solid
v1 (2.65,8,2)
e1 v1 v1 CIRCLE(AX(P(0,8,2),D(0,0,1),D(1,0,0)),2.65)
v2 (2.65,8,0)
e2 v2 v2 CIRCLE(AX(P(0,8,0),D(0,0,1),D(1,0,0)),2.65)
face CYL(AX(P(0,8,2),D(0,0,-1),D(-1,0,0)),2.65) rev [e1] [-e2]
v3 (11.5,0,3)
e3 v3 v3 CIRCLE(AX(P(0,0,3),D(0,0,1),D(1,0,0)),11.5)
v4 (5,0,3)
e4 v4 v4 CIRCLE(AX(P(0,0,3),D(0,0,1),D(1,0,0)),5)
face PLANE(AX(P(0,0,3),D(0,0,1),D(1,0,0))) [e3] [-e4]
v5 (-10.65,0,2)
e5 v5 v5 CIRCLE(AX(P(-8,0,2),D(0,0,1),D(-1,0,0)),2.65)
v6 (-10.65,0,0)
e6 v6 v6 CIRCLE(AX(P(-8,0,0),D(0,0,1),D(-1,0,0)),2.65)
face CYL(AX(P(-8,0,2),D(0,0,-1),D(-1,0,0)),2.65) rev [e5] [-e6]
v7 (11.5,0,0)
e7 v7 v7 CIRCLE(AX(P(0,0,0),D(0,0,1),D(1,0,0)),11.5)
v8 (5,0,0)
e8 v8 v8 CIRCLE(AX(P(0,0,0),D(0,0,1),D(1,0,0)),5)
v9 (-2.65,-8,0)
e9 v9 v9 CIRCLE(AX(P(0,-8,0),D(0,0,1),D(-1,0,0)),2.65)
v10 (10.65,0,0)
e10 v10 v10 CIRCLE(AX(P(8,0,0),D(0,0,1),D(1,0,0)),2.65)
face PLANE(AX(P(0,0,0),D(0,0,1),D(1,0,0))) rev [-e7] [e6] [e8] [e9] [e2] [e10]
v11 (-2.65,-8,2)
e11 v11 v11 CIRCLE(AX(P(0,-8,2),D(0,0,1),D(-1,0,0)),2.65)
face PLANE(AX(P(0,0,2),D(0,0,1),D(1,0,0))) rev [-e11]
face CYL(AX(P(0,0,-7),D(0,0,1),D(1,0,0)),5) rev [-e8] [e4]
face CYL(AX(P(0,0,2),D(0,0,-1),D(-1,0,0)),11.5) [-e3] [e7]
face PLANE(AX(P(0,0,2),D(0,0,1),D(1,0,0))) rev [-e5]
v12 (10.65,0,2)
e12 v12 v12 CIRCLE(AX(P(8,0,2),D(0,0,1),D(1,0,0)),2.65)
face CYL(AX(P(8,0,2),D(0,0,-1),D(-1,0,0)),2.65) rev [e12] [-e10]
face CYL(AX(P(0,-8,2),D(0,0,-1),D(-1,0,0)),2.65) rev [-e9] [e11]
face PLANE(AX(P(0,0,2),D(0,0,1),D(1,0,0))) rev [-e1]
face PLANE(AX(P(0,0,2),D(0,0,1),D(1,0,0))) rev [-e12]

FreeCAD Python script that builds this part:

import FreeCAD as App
import Part
import Sketcher
from FreeCAD import Vector

doc = App.newDocument("Part")
params = doc.addObject("Spreadsheet::Sheet", "Params")
for row, (alias, value) in enumerate([
    ("sketch1_diameter", "23 mm"),
    ("sketch1_diameter2", "5.3 mm"),
    ("pad1_length", "2 mm"),
    ("sketch2_diameter", "23 mm"),
    ("pad2_length", "1 mm"),
    ("sketch3_diameter", "10 mm"),
    ("pocket1_length", "10 mm"),
], start=1):
    params.set(f"A{row}", alias)
    params.set(f"B{row}", "=" + value)
    params.setAlias(f"B{row}", alias)

body = doc.addObject("PartDesign::Body", "Body")

# Sketch on XY plane
sketch1 = body.newObject("Sketcher::SketchObject", "Sketch")
sketch1.AttachmentSupport = (doc.getObject("XY_Plane"), [""])
sketch1.MapMode = "FlatFace"
sketch1.addGeometry(Part.Circle(Vector(0, 0, 0), Vector(0, 0, 1), 11.5), False)
sketch1.addGeometry(Part.Circle(Vector(0, -8, 0), Vector(0, 0, 1), 2.65), False)
sketch1.addGeometry(Part.Circle(Vector(-8, 0, 0), Vector(0, 0, 1), 2.65), False)
sketch1.addGeometry(Part.Circle(Vector(8, 0, 0), Vector(0, 0, 1), 2.65), False)
sketch1.addGeometry(Part.Circle(Vector(0, 8, 0), Vector(0, 0, 1), 2.65), False)
sketch1.addConstraint(Sketcher.Constraint("Coincident", 0, 3, -1, 1))
sketch1.addConstraint(Sketcher.Constraint("Equal", 1, 2))
sketch1.addConstraint(Sketcher.Constraint("Equal", 2, 3))
sketch1.addConstraint(Sketcher.Constraint("Equal", 3, 4))
sketch1.addConstraint(Sketcher.Constraint("Symmetric", 2, 3, 3, 3, -1, 1))
sketch1.addConstraint(Sketcher.Constraint("Symmetric", 1, 3, 4, 3, -1, 1))
sketch1.addConstraint(Sketcher.Constraint("PointOnObject", 1, 3, -2))
sketch1.addConstraint(Sketcher.Constraint("PointOnObject", 2, 3, -1))
sketch1.addConstraint(Sketcher.Constraint("Diameter", 0, 23.0))
sketch1.addConstraint(Sketcher.Constraint("Diameter", 1, 5.3))
sketch1.addConstraint(Sketcher.Constraint("DistanceY", 1, 3, -1, 1, 8.0))
sketch1.addConstraint(Sketcher.Constraint("DistanceX", 2, 3, -1, 1, 8.0))
sketch1.setExpression("Constraints[8]", "Params.sketch1_diameter")
sketch1.setExpression("Constraints[9]", "Params.sketch1_diameter2")
pad1 = body.newObject("PartDesign::Pad", "Pad")
pad1.Profile = sketch1
pad1.setExpression("Length", "Params.pad1_length")

# Sketch on XY plane
sketch2 = body.newObject("Sketcher::SketchObject", "Sketch001")
sketch2.AttachmentSupport = (doc.getObject("XY_Plane"), [""])
sketch2.MapMode = "FlatFace"
sketch2.AttachmentOffset = App.Placement(Vector(0, 0, 2), App.Rotation())
sketch2.addGeometry(Part.Circle(Vector(0, 0, 0), Vector(0, 0, 1), 11.5), False)
sketch2.addConstraint(Sketcher.Constraint("Coincident", 0, 3, -1, 1))
sketch2.addConstraint(Sketcher.Constraint("Diameter", 0, 23.0))
sketch2.setExpression("Constraints[1]", "Params.sketch2_diameter")
pad2 = body.newObject("PartDesign::Pad", "Pad001")
pad2.Profile = sketch2
pad2.setExpression("Length", "Params.pad2_length")

# Sketch on XY plane
sketch3 = body.newObject("Sketcher::SketchObject", "Sketch002")
sketch3.AttachmentSupport = (doc.getObject("XY_Plane"), [""])
sketch3.MapMode = "FlatFace"
sketch3.AttachmentOffset = App.Placement(Vector(0, 0, 3), App.Rotation())
sketch3.addGeometry(Part.Circle(Vector(0, 0, 0), Vector(0, 0, 1), 5), False)
sketch3.addConstraint(Sketcher.Constraint("Coincident", 0, 3, -1, 1))
sketch3.addConstraint(Sketcher.Constraint("Diameter", 0, 10.0))
sketch3.setExpression("Constraints[1]", "Params.sketch3_diameter")
pocket1 = body.newObject("PartDesign::Pocket", "Pocket")
pocket1.Profile = sketch3
pocket1.setExpression("Length", "Params.pocket1_length")

doc.recompute()
